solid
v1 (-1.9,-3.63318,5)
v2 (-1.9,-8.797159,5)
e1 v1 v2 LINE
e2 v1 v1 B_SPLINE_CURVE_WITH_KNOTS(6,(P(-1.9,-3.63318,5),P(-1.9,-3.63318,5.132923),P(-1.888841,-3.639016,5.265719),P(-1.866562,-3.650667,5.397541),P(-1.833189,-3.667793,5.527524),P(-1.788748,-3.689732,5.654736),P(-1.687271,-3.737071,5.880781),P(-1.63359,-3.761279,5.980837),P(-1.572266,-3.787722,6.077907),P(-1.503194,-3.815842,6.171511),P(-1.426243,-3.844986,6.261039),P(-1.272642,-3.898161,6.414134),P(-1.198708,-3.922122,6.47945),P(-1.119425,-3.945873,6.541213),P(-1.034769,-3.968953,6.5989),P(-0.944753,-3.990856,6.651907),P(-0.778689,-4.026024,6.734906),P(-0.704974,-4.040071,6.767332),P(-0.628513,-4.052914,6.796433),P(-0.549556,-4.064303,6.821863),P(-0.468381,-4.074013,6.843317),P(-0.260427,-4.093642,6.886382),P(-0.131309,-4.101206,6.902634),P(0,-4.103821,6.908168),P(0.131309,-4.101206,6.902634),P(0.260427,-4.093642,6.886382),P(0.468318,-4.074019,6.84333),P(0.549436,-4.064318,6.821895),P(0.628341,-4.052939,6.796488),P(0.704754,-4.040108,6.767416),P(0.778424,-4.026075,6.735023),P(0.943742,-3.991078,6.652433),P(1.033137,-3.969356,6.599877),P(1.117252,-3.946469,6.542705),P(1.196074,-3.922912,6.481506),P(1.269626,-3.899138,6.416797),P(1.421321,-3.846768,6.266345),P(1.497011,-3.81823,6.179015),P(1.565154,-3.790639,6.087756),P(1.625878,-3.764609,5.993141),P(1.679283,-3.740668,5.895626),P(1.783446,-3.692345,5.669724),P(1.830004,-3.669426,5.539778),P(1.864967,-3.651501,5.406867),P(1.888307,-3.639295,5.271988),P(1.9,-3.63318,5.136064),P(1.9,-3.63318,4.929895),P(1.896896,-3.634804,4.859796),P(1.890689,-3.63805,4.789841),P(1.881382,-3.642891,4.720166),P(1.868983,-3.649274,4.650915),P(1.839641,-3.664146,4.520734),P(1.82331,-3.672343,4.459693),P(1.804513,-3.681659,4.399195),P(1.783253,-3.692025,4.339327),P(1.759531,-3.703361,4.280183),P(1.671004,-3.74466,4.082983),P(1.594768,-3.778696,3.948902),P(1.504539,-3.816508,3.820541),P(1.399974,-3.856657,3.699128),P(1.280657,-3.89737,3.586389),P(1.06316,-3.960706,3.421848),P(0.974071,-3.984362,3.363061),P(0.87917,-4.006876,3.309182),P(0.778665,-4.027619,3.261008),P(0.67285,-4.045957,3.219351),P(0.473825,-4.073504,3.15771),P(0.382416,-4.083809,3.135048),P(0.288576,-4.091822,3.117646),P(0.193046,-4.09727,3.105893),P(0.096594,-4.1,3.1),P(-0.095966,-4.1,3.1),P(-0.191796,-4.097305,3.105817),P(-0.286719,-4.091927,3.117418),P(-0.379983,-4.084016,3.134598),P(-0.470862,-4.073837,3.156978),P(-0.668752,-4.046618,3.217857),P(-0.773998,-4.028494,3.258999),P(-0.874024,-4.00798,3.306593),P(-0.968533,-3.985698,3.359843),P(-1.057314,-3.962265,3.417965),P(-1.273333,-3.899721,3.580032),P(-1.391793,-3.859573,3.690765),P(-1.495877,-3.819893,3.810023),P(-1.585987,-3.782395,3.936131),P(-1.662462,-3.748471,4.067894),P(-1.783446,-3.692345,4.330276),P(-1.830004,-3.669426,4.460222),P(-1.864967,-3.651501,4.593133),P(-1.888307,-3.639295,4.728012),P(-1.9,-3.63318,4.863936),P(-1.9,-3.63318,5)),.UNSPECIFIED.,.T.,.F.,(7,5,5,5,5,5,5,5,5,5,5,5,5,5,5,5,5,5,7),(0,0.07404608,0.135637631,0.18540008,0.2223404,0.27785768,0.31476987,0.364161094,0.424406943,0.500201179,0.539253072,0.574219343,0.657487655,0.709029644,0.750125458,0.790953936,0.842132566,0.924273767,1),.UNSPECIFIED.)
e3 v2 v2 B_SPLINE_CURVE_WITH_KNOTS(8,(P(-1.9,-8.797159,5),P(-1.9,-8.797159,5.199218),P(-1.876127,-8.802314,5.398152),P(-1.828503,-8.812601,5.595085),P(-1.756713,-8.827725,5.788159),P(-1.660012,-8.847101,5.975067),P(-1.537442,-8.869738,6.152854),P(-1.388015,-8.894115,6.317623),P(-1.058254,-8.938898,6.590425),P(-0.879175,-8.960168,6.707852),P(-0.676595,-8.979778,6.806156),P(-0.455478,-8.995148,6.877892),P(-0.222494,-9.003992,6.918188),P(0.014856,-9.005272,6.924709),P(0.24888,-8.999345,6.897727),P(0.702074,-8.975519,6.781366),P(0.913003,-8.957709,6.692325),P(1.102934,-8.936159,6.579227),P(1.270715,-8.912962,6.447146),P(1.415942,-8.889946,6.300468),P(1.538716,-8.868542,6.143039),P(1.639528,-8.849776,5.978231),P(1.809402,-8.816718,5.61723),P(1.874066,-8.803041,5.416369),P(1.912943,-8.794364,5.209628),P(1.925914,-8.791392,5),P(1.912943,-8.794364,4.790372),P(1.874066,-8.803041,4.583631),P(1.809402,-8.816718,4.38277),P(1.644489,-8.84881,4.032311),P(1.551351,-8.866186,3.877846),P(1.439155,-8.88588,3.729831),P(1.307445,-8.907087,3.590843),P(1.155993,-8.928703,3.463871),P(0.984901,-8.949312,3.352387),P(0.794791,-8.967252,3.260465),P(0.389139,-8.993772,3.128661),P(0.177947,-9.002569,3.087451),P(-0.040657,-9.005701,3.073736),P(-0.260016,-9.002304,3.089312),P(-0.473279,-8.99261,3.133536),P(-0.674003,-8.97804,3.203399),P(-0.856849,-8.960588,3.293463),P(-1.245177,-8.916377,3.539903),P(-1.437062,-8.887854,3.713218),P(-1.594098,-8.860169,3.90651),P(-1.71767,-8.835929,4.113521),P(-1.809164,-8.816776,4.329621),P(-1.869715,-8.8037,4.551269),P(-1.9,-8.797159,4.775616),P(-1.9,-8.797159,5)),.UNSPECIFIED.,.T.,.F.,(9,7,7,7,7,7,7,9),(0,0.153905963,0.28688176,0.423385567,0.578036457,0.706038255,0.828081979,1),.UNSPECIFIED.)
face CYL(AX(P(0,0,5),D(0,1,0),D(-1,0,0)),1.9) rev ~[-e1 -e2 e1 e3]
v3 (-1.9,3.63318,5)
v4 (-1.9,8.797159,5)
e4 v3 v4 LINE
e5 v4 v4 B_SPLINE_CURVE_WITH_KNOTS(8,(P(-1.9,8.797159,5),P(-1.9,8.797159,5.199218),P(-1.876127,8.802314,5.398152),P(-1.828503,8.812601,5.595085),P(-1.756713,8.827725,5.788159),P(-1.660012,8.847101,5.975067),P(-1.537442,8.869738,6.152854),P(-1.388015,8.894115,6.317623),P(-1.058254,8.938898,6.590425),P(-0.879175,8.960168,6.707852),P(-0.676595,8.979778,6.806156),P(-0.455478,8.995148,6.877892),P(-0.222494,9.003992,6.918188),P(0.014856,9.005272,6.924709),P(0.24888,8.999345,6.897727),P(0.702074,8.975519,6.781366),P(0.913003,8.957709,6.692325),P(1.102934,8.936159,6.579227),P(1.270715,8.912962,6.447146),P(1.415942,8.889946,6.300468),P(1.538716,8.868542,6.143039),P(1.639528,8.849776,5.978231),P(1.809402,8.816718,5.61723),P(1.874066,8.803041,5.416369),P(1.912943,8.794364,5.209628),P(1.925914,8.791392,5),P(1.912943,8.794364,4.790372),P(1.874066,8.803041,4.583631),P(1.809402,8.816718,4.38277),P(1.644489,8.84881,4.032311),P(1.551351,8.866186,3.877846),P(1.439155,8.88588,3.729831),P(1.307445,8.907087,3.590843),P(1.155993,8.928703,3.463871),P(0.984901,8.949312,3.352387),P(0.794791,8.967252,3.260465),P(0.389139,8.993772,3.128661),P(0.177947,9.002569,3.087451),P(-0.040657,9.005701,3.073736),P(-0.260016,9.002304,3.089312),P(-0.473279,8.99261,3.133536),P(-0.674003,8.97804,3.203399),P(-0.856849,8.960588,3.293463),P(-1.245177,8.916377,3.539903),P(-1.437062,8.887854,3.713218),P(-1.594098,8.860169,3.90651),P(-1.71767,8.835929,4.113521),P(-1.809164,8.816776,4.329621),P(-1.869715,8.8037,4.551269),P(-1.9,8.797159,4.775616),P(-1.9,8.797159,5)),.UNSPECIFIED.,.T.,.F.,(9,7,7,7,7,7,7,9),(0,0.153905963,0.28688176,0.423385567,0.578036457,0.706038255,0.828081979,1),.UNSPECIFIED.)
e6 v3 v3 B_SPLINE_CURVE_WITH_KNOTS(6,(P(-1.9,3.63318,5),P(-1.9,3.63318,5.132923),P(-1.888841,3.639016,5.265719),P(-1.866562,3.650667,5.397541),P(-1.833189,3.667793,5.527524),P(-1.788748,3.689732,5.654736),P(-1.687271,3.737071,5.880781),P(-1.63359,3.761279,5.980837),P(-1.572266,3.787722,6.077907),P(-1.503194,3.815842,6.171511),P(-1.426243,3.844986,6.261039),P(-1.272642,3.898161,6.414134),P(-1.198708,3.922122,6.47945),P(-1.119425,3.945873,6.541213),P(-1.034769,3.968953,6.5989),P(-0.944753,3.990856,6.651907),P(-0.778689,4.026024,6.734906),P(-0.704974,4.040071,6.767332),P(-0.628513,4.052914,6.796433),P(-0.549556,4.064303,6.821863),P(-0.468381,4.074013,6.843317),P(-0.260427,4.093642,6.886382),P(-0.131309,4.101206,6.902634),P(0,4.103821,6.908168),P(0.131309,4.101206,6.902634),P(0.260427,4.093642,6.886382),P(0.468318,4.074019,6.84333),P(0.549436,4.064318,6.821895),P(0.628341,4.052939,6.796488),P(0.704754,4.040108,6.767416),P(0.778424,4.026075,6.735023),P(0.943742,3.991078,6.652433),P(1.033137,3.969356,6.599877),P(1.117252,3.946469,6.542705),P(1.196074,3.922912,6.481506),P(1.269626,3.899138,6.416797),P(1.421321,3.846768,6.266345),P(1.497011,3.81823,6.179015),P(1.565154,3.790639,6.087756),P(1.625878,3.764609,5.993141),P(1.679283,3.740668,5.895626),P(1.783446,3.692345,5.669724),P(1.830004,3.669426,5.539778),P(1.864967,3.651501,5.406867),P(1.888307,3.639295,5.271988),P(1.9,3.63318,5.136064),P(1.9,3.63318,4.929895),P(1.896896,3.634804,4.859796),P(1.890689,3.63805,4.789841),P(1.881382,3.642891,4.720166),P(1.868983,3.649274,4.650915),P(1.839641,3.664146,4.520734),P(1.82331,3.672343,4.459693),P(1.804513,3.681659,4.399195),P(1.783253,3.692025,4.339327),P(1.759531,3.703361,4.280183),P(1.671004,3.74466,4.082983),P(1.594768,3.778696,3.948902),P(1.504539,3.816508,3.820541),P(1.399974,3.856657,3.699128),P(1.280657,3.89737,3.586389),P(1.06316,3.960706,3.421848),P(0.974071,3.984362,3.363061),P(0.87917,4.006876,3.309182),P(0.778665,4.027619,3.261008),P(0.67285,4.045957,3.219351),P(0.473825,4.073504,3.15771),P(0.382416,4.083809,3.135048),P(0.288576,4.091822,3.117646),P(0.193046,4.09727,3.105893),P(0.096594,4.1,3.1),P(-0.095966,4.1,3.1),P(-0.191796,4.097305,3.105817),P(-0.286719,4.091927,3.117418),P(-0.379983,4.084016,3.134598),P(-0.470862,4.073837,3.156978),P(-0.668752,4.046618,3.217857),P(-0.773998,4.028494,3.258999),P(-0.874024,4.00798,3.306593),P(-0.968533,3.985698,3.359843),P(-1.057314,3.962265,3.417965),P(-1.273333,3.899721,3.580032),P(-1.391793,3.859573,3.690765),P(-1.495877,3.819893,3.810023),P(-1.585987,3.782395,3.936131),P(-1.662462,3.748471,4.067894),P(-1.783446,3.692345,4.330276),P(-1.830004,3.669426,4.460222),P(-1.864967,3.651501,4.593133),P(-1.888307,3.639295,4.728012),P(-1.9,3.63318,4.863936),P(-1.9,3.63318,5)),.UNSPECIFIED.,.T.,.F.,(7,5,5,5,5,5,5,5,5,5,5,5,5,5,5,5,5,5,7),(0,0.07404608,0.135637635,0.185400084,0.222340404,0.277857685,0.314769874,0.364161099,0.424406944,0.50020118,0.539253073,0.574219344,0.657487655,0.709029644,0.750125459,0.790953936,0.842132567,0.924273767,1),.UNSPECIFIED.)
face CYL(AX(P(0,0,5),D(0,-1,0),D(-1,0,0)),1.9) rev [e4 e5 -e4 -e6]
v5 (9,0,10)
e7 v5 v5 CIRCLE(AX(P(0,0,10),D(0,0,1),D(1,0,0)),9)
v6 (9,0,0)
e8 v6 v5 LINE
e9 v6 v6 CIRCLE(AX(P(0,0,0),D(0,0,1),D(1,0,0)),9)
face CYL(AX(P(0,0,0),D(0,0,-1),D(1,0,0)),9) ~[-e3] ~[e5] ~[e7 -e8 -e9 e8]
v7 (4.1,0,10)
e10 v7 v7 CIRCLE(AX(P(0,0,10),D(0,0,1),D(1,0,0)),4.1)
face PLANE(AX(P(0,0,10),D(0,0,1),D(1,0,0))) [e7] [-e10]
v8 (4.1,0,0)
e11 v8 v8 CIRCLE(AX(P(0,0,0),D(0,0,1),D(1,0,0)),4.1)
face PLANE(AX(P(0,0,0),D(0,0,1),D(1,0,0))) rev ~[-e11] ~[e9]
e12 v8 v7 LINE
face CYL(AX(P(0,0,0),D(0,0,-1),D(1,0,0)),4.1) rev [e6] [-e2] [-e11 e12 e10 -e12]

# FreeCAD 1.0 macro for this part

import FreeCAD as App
import Part
import Sketcher

V = App.Vector

doc = App.newDocument("Part")
body = doc.addObject("PartDesign::Body", "Body")

# Sketch on XY plane
sketch1 = body.newObject("Sketcher::SketchObject", "Sketch")
sketch1.AttachmentSupport = (doc.getObject("XY_Plane"), [""])
sketch1.MapMode = "FlatFace"
sketch1.addGeometry([
    Part.Circle(V(0, 0, 0), V(0, 0, 1), 9),
    Part.Circle(V(0, 0, 0), V(0, 0, 1), 4.1),
], False)
sketch1.addConstraint([
    Sketcher.Constraint("Coincident", 0, 3, -1, 1),
    Sketcher.Constraint("Coincident", 1, 3, -1, 1),
    Sketcher.Constraint("Diameter", 0, 18.0),
    Sketcher.Constraint("Diameter", 1, 8.2),
])
pad1 = body.newObject("PartDesign::Pad", "Pad")
pad1.Profile = sketch1
pad1.Length = 10

# Sketch on XZ plane
sketch2 = body.newObject("Sketcher::SketchObject", "Sketch001")
sketch2.AttachmentSupport = (doc.getObject("XZ_Plane"), [""])
sketch2.MapMode = "FlatFace"
sketch2.addGeometry(Part.Circle(V(0, 5, 0), V(0, 0, 1), 1.9), False)
sketch2.addConstraint([
    Sketcher.Constraint("PointOnObject", 0, 3, -2),
    Sketcher.Constraint("Diameter", 0, 3.8),
    Sketcher.Constraint("DistanceY", -1, 1, 0, 3, 5.0),
])
pocket1 = body.newObject("PartDesign::Pocket", "Pocket")
pocket1.Profile = sketch2
pocket1.Type = "ThroughAll"
pocket1.Midplane = True

doc.recompute()
